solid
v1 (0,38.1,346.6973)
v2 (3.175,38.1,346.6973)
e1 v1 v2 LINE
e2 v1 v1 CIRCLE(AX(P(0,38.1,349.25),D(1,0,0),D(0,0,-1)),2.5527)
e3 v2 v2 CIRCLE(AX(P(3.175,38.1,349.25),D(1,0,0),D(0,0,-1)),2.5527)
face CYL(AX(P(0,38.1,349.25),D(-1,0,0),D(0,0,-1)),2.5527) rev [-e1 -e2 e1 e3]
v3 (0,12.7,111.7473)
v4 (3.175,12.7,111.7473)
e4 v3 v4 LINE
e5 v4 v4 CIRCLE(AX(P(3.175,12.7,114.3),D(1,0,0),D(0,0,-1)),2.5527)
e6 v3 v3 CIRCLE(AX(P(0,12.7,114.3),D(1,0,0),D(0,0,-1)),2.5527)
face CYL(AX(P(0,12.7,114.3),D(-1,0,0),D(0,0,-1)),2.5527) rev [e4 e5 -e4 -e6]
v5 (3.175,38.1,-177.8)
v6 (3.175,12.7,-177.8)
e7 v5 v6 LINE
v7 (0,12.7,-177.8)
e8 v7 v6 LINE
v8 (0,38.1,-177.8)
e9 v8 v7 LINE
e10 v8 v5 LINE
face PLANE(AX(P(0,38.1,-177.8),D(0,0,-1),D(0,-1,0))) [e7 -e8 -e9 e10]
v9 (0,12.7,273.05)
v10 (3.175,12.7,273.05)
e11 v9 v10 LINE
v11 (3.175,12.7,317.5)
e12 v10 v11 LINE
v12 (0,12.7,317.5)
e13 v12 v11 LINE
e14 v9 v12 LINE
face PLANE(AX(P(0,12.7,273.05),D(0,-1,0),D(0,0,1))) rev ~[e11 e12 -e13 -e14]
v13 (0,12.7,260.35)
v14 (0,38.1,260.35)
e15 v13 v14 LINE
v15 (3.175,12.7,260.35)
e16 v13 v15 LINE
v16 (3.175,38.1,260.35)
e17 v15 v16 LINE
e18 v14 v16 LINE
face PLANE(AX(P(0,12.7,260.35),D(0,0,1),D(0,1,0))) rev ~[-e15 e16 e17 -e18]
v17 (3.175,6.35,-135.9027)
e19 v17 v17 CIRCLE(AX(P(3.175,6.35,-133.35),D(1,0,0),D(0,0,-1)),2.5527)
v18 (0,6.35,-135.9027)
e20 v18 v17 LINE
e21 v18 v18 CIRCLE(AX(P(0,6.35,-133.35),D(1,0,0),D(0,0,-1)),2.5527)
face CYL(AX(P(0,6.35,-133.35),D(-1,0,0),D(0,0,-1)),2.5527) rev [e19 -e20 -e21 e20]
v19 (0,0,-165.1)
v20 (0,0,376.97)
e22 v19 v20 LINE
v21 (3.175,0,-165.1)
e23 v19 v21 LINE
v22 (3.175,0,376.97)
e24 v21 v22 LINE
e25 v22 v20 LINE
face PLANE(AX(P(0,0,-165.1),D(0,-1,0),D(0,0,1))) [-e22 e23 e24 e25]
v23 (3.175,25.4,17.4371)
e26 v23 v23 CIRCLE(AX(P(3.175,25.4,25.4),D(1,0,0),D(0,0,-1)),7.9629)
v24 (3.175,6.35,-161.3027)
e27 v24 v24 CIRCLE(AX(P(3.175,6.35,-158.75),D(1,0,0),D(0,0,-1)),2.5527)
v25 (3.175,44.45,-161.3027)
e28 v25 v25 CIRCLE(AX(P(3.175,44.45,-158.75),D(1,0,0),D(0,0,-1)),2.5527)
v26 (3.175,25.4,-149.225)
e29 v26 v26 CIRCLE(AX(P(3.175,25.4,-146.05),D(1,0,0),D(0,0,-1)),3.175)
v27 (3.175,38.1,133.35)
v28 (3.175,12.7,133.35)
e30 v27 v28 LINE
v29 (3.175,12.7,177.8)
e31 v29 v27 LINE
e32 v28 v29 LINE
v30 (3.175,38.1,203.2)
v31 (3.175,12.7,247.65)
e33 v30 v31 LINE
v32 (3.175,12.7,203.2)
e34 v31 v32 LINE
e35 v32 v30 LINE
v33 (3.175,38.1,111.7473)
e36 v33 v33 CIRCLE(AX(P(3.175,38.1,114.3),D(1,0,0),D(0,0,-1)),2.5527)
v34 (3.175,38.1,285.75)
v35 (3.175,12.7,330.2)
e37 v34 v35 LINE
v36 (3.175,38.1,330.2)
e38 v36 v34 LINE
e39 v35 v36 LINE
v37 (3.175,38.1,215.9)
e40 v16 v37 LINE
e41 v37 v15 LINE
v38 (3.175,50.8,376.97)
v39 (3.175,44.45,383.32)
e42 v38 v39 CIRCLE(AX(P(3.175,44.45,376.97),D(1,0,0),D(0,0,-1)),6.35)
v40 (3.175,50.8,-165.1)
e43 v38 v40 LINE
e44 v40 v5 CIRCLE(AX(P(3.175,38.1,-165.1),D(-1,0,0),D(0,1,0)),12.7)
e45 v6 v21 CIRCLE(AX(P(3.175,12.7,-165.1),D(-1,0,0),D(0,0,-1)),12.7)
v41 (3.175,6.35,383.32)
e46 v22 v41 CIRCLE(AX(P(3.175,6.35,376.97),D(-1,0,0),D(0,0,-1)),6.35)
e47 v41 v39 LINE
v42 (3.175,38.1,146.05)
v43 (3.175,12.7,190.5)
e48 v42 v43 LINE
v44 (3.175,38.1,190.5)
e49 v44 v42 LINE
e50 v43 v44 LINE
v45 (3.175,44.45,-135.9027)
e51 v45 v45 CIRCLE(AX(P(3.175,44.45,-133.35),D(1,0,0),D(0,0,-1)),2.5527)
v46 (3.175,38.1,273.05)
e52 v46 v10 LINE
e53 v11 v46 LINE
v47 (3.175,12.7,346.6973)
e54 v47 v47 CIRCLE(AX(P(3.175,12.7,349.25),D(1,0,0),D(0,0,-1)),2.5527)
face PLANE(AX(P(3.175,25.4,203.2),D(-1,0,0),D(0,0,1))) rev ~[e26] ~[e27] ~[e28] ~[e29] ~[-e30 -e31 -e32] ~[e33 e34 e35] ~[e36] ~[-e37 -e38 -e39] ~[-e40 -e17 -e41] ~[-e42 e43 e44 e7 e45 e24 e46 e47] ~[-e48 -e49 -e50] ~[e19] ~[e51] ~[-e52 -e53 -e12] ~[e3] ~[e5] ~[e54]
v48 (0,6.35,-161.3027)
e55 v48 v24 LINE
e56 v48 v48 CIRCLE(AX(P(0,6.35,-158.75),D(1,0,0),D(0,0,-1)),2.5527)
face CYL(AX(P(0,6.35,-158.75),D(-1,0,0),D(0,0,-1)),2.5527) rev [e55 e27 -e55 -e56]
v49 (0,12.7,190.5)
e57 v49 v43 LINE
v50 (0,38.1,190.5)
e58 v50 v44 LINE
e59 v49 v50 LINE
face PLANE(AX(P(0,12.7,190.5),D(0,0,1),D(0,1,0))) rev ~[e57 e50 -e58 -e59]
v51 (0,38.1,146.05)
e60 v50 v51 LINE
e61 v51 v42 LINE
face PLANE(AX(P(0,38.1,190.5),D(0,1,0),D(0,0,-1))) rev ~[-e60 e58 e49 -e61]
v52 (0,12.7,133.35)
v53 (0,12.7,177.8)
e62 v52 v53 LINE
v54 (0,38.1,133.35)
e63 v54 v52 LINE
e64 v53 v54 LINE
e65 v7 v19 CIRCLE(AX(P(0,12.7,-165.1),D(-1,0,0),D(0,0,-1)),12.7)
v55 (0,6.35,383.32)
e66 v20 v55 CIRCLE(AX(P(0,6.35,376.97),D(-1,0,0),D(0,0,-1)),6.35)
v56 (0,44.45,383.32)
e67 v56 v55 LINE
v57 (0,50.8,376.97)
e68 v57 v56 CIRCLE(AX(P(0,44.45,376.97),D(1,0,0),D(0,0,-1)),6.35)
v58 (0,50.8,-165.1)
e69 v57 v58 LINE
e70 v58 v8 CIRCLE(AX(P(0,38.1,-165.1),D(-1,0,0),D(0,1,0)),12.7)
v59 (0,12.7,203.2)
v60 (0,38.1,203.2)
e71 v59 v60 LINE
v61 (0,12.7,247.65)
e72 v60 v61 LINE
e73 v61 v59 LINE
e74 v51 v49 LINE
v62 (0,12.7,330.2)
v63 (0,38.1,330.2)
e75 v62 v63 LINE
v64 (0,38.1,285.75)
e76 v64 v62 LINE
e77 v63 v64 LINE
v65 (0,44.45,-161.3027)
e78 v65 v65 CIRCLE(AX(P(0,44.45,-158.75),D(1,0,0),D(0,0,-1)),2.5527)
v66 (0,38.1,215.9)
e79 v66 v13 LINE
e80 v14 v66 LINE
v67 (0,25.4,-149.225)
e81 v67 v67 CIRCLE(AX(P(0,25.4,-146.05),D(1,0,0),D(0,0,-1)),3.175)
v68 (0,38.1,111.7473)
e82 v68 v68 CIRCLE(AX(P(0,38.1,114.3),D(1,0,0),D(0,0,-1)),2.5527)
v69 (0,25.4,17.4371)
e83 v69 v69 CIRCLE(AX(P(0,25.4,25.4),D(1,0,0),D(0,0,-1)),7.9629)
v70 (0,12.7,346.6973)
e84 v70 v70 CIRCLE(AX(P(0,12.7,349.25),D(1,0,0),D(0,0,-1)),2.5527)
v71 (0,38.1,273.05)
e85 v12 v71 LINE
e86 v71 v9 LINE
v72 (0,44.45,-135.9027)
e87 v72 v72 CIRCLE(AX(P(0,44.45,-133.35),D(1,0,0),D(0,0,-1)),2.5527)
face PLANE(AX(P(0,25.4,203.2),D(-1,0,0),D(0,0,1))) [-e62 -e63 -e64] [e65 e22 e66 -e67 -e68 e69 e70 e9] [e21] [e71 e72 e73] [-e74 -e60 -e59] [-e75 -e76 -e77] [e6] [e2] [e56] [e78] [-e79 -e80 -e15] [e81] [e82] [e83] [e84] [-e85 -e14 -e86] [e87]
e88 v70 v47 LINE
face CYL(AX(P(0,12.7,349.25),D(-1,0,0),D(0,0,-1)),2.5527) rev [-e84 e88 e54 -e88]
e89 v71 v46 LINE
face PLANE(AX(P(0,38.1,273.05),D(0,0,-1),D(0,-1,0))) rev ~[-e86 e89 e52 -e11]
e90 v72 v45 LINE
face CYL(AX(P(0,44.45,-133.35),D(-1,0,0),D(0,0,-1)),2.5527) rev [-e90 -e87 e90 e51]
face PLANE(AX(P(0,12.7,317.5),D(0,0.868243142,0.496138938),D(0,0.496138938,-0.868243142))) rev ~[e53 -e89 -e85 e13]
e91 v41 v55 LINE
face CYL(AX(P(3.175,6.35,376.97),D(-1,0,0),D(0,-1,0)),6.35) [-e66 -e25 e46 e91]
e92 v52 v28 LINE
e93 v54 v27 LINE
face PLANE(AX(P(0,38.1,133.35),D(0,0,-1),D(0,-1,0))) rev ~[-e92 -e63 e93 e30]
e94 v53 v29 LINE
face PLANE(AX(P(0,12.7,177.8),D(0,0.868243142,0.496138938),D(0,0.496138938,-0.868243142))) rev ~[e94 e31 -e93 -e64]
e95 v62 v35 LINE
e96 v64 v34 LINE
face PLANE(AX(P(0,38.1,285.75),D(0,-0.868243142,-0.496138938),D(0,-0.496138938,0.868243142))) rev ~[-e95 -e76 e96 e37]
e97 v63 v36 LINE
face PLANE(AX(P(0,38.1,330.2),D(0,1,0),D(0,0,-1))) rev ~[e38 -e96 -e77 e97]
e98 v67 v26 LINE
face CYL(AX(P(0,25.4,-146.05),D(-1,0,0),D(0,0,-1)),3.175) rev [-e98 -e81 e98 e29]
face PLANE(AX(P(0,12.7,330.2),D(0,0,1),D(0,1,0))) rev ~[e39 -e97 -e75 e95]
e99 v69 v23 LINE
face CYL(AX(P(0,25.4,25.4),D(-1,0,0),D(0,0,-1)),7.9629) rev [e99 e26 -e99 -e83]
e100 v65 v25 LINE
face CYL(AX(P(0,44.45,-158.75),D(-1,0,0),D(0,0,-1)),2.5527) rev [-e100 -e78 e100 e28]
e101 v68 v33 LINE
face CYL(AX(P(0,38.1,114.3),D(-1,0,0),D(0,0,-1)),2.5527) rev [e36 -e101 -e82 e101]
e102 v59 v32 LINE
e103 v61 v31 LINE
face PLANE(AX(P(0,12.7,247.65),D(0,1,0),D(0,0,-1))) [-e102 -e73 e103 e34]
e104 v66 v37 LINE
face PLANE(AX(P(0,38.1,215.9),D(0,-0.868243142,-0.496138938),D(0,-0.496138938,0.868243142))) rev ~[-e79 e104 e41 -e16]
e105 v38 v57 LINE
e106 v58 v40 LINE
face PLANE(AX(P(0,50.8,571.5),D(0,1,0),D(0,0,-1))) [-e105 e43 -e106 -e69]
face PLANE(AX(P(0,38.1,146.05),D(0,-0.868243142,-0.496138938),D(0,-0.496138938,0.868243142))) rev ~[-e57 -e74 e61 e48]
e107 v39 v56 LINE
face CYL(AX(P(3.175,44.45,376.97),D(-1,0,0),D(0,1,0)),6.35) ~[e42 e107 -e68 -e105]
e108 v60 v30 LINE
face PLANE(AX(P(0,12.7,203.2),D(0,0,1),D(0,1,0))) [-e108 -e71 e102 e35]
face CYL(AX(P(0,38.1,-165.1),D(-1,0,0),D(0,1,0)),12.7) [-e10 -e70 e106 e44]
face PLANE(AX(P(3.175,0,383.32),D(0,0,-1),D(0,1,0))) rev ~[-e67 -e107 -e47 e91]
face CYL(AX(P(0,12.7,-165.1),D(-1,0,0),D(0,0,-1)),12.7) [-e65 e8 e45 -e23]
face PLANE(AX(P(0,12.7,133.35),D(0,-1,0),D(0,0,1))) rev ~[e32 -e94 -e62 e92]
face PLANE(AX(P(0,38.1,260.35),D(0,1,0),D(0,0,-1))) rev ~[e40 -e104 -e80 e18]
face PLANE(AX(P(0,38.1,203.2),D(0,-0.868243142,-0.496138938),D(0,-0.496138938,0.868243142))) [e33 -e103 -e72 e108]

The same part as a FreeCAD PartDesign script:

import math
import FreeCAD as App
import Part
import Sketcher
from FreeCAD import Vector
Q = App.Units.Quantity


def edges_at(feature, points):
    """Names of the edges that pass closest to the given points."""
    edges = feature.Shape.Edges
    near = lambda p: min(range(len(edges)), key=lambda i: edges[i].distToShape(Part.Vertex(*p))[0])
    return sorted({f"Edge{near(p) + 1}" for p in points})

doc = App.newDocument("Part")
body = doc.addObject("PartDesign::Body", "Body")

sketch1 = body.newObject("Sketcher::SketchObject", "Sketch")
sketch1.AttachmentSupport = (doc.getObject("YZ_Plane"), [""])
sketch1.MapMode = "FlatFace"
sketch1.addGeometry([
    Part.LineSegment(Vector(12.7, -177.8, 0), Vector(38.1, -177.8, 0)),
    Part.ArcOfCircle(Part.Circle(Vector(38.1, -165.1, 0), Vector(0, 0, 1), 12.7), math.radians(-90), math.radians(0)),
    Part.LineSegment(Vector(50.8, -165.1, 0), Vector(50.8, 571.5, 0)),
    Part.ArcOfCircle(Part.Circle(Vector(38.1, 571.5, 0), Vector(0, 0, 1), 12.7), math.radians(0), math.radians(90)),
    Part.LineSegment(Vector(38.1, 584.2, 0), Vector(12.7, 584.2, 0)),
    Part.ArcOfCircle(Part.Circle(Vector(12.7, 571.5, 0), Vector(0, 0, 1), 12.7), math.radians(90), math.radians(180)),
    Part.LineSegment(Vector(0, 571.5, 0), Vector(0, -165.1, 0)),
    Part.ArcOfCircle(Part.Circle(Vector(12.7, -165.1, 0), Vector(0, 0, 1), 12.7), math.radians(180), math.radians(270)),
    Part.Circle(Vector(6.3, -158.8, 0), Vector(0, 0, 1), 2.6),
    Part.Circle(Vector(6.3, -133.3, 0), Vector(0, 0, 1), 2.6),
    Part.Circle(Vector(25.4, -146.1, 0), Vector(0, 0, 1), 3.2),
    Part.Circle(Vector(25.4, 25.4, 0), Vector(0, 0, 1), 8),
    Part.Circle(Vector(12.7, 114.3, 0), Vector(0, 0, 1), 2.6),
    Part.Circle(Vector(12.7, 349.2, 0), Vector(0, 0, 1), 2.6),
    Part.Circle(Vector(44.5, -158.8, 0), Vector(0, 0, 1), 2.6),
    Part.Circle(Vector(44.5, -133.3, 0), Vector(0, 0, 1), 2.6),
    Part.LineSegment(Vector(38.1, 133.3, 0), Vector(12.7, 133.3, 0)),
    Part.LineSegment(Vector(12.7, 133.3, 0), Vector(12.7, 177.8, 0)),
    Part.LineSegment(Vector(12.7, 177.8, 0), Vector(38.1, 133.3, 0)),
    Part.LineSegment(Vector(38.1, 190.5, 0), Vector(38.1, 146.1, 0)),
    Part.LineSegment(Vector(38.1, 146.1, 0), Vector(12.7, 190.5, 0)),
    Part.LineSegment(Vector(12.7, 190.5, 0), Vector(38.1, 190.5, 0)),
    Part.LineSegment(Vector(12.7, 203.2, 0), Vector(12.7, 247.7, 0)),
    Part.LineSegment(Vector(12.7, 247.7, 0), Vector(38.1, 203.2, 0)),
    Part.LineSegment(Vector(38.1, 203.2, 0), Vector(12.7, 203.2, 0)),
    Part.LineSegment(Vector(38.1, 215.9, 0), Vector(12.7, 260.4, 0)),
    Part.LineSegment(Vector(12.7, 260.4, 0), Vector(38.1, 260.4, 0)),
    Part.LineSegment(Vector(38.1, 260.4, 0), Vector(38.1, 215.9, 0)),
    Part.LineSegment(Vector(38.1, 273.1, 0), Vector(12.7, 273.1, 0)),
    Part.LineSegment(Vector(12.7, 273.1, 0), Vector(12.7, 317.5, 0)),
    Part.LineSegment(Vector(12.7, 317.5, 0), Vector(38.1, 273.1, 0)),
    Part.LineSegment(Vector(12.7, 330.2, 0), Vector(38.1, 330.2, 0)),
    Part.LineSegment(Vector(38.1, 330.2, 0), Vector(38.1, 285.8, 0)),
    Part.LineSegment(Vector(38.1, 285.8, 0), Vector(12.7, 330.2, 0)),
    Part.Circle(Vector(38.1, 114.3, 0), Vector(0, 0, 1), 2.6),
    Part.Circle(Vector(38.1, 349.2, 0), Vector(0, 0, 1), 2.6),
], False)
sketch1.addConstraint([
    Sketcher.Constraint("Tangent", 0, 2, 1, 1),
    Sketcher.Constraint("Tangent", 1, 2, 2, 1),
    Sketcher.Constraint("Tangent", 2, 2, 3, 1),
    Sketcher.Constraint("Tangent", 3, 2, 4, 1),
    Sketcher.Constraint("Tangent", 4, 2, 5, 1),
    Sketcher.Constraint("Tangent", 5, 2, 6, 1),
    Sketcher.Constraint("Tangent", 6, 2, 7, 1),
    Sketcher.Constraint("Tangent", 7, 2, 0, 1),
    Sketcher.Constraint("Coincident", 16, 2, 17, 1),
    Sketcher.Constraint("Coincident", 17, 2, 18, 1),
    Sketcher.Constraint("Coincident", 18, 2, 16, 1),
    Sketcher.Constraint("Coincident", 19, 2, 20, 1),
    Sketcher.Constraint("Coincident", 20, 2, 21, 1),
    Sketcher.Constraint("Coincident", 21, 2, 19, 1),
    Sketcher.Constraint("Coincident", 22, 2, 23, 1),
    Sketcher.Constraint("Coincident", 23, 2, 24, 1),
    Sketcher.Constraint("Coincident", 24, 2, 22, 1),
    Sketcher.Constraint("Coincident", 25, 2, 26, 1),
    Sketcher.Constraint("Coincident", 26, 2, 27, 1),
    Sketcher.Constraint("Coincident", 27, 2, 25, 1),
    Sketcher.Constraint("Coincident", 28, 2, 29, 1),
    Sketcher.Constraint("Coincident", 29, 2, 30, 1),
    Sketcher.Constraint("Coincident", 30, 2, 28, 1),
    Sketcher.Constraint("Coincident", 31, 2, 32, 1),
    Sketcher.Constraint("Coincident", 32, 2, 33, 1),
    Sketcher.Constraint("Coincident", 33, 2, 31, 1),
    Sketcher.Constraint("Horizontal", 0),
    Sketcher.Constraint("Vertical", 2),
    Sketcher.Constraint("Horizontal", 4),
    Sketcher.Constraint("Vertical", 6),
    Sketcher.Constraint("Horizontal", 16),
    Sketcher.Constraint("Vertical", 17),
    Sketcher.Constraint("Vertical", 19),
    Sketcher.Constraint("Horizontal", 21),
    Sketcher.Constraint("Vertical", 22),
    Sketcher.Constraint("Horizontal", 24),
    Sketcher.Constraint("Horizontal", 26),
    Sketcher.Constraint("Vertical", 27),
    Sketcher.Constraint("Horizontal", 28),
    Sketcher.Constraint("Vertical", 29),
    Sketcher.Constraint("Horizontal", 31),
    Sketcher.Constraint("Vertical", 32),
    Sketcher.Constraint("Equal", 1, 3),
    Sketcher.Constraint("Equal", 3, 5),
    Sketcher.Constraint("Equal", 5, 7),
    Sketcher.Constraint("Equal", 8, 9),
    Sketcher.Constraint("Equal", 9, 12),
    Sketcher.Constraint("Equal", 12, 13),
    Sketcher.Constraint("Equal", 13, 14),
    Sketcher.Constraint("Equal", 14, 15),
    Sketcher.Constraint("Equal", 15, 34),
    Sketcher.Constraint("Equal", 34, 35),
    Sketcher.Constraint("Symmetric", 7, 2, 17, 2, -1),
    Sketcher.Constraint("PointOnObject", 5, 2, -2),
    Sketcher.Constraint("Parallel", 18, 20),
    Sketcher.Constraint("Parallel", 20, 23),
    Sketcher.Constraint("Parallel", 23, 25),
    Sketcher.Constraint("Parallel", 25, 30),
    Sketcher.Constraint("Parallel", 30, 33),
    Sketcher.Constraint("Horizontal", 8, 3, 14, 3),
    Sketcher.Constraint("Horizontal", 9, 3, 15, 3),
    Sketcher.Constraint("Horizontal", 12, 3, 34, 3),
    Sketcher.Constraint("Horizontal", 13, 3, 35, 3),
    Sketcher.Constraint("Vertical", 8, 3, 9, 3),
    Sketcher.Constraint("Vertical", 10, 3, 11, 3),
    Sketcher.Constraint("Vertical", 7, 3, 12, 3),
    Sketcher.Constraint("Vertical", 12, 3, 13, 3),
    Sketcher.Constraint("Vertical", 14, 3, 15, 3),
    Sketcher.Constraint("Vertical", 3, 3, 34, 3),
    Sketcher.Constraint("Vertical", 34, 3, 35, 3),
    Sketcher.Constraint("Vertical", 3, 2, 18, 2),
    Sketcher.Constraint("Vertical", 18, 2, 19, 2),
    Sketcher.Constraint("Vertical", 17, 2, 20, 2),
    Sketcher.Constraint("Vertical", 20, 2, 22, 2),
    Sketcher.Constraint("Vertical", 21, 2, 23, 2),
    Sketcher.Constraint("Vertical", 24, 2, 25, 2),
    Sketcher.Constraint("Vertical", 23, 2, 26, 2),
    Sketcher.Constraint("Vertical", 25, 2, 28, 2),
    Sketcher.Constraint("Vertical", 27, 2, 30, 2),
    Sketcher.Constraint("Vertical", 30, 2, 31, 2),
    Sketcher.Constraint("Vertical", 29, 2, 33, 2),
    Sketcher.Constraint("Radius", 1, Q("0.5 in")),
    Sketcher.Constraint("Diameter", 10, Q("0.25 in")),
    Sketcher.Constraint("DistanceX", 0, 1, 0, 2, Q("1 in")),
    Sketcher.Constraint("DistanceY", 2, 1, 2, 2, Q("29 in")),
    Sketcher.Constraint("Diameter", 8, Q("0.201 in")),
    Sketcher.Constraint("Diameter", 11, Q("0.627 in")),
    Sketcher.Constraint("DistanceX", -1, 1, 10, 3, Q("1 in")),
    Sketcher.Constraint("DistanceY", -1, 1, 11, 3, Q("1 in")),
    Sketcher.Constraint("DistanceY", 0, 2, -1, 1, Q("7 in")),
    Sketcher.Constraint("DistanceY", -1, 1, 23, 2, Q("8 in")),
    Sketcher.Constraint("DistanceY", -1, 1, 31, 2, Q("13 in")),
    Sketcher.Constraint("DistanceY", 8, 3, 9, 3, Q("1 in")),
    Sketcher.Constraint("DistanceY", 7, 3, 12, 3, Q("11 in")),
    Sketcher.Constraint("DistanceY", 9, 3, 13, 3, Q("19 in")),
    Sketcher.Constraint("DistanceY", 12, 3, 20, 2, Q("3 in")),
    Sketcher.Constraint("DistanceY", 22, 2, 13, 3, Q("4 in")),
    Sketcher.Constraint("DistanceY", 21, 2, 27, 2, Q("1 in")),
    Sketcher.Constraint("DistanceY", 22, 2, 28, 2, Q("1 in")),
    Sketcher.Constraint("DistanceY", 26, 2, 32, 2, Q("1 in")),
    Sketcher.Constraint("DistanceY", 8, 3, 10, 3, Q("0.5 in")),
    Sketcher.Constraint("DistanceX", 8, 3, 14, 3, Q("1.5 in")),
    Sketcher.Constraint("DistanceX", -1, 1, 8, 3, Q("0.25 in")),
])
pad1 = body.newObject("PartDesign::Pad", "Pad")
pad1.Profile = sketch1
pad1.Length = Q("0.125 in")

sketch2 = body.newObject("Sketcher::SketchObject", "Sketch001")
sketch2.AttachmentSupport = (doc.getObject("YZ_Plane"), [""])
sketch2.MapMode = "FlatFace"
sketch2.AttachmentOffset = App.Placement(Vector(0, 0, 0.125 * 25.4), App.Rotation())
sketch2.addGeometry(Part.Circle(Vector(25, 559, 0), Vector(0, 0, 1), 6), False)
sketch2.addConstraint([
    Sketcher.Constraint("Diameter", 0, Q("0.4375 in")),
    Sketcher.Constraint("DistanceX", -1, 1, 0, 3, Q("1 in")),
    Sketcher.Constraint("DistanceY", -1, 1, 0, 3, Q("22 in")),
])
pocket1 = body.newObject("PartDesign::Pocket", "Pocket")
pocket1.Profile = sketch2
pocket1.Type = "ThroughAll"

sketch3 = body.newObject("Sketcher::SketchObject", "Sketch002")
sketch3.AttachmentSupport = (doc.getObject("YZ_Plane"), [""])
sketch3.MapMode = "FlatFace"
sketch3.AttachmentOffset = App.Placement(Vector(0, 0, 0.125 * 25.4), App.Rotation())
sketch3.addGeometry([
    Part.LineSegment(Vector(51, 584, 0), Vector(0, 584, 0)),
    Part.LineSegment(Vector(0, 584, 0), Vector(0, 383, 0)),
    Part.LineSegment(Vector(0, 383, 0), Vector(51, 383, 0)),
    Part.LineSegment(Vector(51, 383, 0), Vector(51, 584, 0)),
], False)
sketch3.addConstraint([
    Sketcher.Constraint("Coincident", 0, 2, 1, 1),
    Sketcher.Constraint("Coincident", 1, 2, 2, 1),
    Sketcher.Constraint("Coincident", 2, 2, 3, 1),
    Sketcher.Constraint("Coincident", 3, 2, 0, 1),
    Sketcher.Constraint("Horizontal", 0),
    Sketcher.Constraint("Vertical", 1),
    Sketcher.Constraint("Horizontal", 2),
    Sketcher.Constraint("Vertical", 3),
    Sketcher.Constraint("PointOnObject", 0, 2, -2),
    Sketcher.Constraint("DistanceX", 0, 2, 0, 1, Q("2 in")),
    Sketcher.Constraint("DistanceY", -1, 1, 0, 2, Q("23 in")),
    Sketcher.Constraint("DistanceY", 1, 2, 1, 1, 200.88),
])
pocket2 = body.newObject("PartDesign::Pocket", "Pocket001")
pocket2.Profile = sketch3
pocket2.Type = "ThroughAll"
doc.recompute()

fillet = body.newObject("PartDesign::Fillet", "Fillet")
fillet.Base = (pocket2, edges_at(pocket2, [(1.587, 0, 383.32), (1.587, 50.8, 383.32)]))
fillet.Radius = Q("0.25 in")

doc.recompute()
